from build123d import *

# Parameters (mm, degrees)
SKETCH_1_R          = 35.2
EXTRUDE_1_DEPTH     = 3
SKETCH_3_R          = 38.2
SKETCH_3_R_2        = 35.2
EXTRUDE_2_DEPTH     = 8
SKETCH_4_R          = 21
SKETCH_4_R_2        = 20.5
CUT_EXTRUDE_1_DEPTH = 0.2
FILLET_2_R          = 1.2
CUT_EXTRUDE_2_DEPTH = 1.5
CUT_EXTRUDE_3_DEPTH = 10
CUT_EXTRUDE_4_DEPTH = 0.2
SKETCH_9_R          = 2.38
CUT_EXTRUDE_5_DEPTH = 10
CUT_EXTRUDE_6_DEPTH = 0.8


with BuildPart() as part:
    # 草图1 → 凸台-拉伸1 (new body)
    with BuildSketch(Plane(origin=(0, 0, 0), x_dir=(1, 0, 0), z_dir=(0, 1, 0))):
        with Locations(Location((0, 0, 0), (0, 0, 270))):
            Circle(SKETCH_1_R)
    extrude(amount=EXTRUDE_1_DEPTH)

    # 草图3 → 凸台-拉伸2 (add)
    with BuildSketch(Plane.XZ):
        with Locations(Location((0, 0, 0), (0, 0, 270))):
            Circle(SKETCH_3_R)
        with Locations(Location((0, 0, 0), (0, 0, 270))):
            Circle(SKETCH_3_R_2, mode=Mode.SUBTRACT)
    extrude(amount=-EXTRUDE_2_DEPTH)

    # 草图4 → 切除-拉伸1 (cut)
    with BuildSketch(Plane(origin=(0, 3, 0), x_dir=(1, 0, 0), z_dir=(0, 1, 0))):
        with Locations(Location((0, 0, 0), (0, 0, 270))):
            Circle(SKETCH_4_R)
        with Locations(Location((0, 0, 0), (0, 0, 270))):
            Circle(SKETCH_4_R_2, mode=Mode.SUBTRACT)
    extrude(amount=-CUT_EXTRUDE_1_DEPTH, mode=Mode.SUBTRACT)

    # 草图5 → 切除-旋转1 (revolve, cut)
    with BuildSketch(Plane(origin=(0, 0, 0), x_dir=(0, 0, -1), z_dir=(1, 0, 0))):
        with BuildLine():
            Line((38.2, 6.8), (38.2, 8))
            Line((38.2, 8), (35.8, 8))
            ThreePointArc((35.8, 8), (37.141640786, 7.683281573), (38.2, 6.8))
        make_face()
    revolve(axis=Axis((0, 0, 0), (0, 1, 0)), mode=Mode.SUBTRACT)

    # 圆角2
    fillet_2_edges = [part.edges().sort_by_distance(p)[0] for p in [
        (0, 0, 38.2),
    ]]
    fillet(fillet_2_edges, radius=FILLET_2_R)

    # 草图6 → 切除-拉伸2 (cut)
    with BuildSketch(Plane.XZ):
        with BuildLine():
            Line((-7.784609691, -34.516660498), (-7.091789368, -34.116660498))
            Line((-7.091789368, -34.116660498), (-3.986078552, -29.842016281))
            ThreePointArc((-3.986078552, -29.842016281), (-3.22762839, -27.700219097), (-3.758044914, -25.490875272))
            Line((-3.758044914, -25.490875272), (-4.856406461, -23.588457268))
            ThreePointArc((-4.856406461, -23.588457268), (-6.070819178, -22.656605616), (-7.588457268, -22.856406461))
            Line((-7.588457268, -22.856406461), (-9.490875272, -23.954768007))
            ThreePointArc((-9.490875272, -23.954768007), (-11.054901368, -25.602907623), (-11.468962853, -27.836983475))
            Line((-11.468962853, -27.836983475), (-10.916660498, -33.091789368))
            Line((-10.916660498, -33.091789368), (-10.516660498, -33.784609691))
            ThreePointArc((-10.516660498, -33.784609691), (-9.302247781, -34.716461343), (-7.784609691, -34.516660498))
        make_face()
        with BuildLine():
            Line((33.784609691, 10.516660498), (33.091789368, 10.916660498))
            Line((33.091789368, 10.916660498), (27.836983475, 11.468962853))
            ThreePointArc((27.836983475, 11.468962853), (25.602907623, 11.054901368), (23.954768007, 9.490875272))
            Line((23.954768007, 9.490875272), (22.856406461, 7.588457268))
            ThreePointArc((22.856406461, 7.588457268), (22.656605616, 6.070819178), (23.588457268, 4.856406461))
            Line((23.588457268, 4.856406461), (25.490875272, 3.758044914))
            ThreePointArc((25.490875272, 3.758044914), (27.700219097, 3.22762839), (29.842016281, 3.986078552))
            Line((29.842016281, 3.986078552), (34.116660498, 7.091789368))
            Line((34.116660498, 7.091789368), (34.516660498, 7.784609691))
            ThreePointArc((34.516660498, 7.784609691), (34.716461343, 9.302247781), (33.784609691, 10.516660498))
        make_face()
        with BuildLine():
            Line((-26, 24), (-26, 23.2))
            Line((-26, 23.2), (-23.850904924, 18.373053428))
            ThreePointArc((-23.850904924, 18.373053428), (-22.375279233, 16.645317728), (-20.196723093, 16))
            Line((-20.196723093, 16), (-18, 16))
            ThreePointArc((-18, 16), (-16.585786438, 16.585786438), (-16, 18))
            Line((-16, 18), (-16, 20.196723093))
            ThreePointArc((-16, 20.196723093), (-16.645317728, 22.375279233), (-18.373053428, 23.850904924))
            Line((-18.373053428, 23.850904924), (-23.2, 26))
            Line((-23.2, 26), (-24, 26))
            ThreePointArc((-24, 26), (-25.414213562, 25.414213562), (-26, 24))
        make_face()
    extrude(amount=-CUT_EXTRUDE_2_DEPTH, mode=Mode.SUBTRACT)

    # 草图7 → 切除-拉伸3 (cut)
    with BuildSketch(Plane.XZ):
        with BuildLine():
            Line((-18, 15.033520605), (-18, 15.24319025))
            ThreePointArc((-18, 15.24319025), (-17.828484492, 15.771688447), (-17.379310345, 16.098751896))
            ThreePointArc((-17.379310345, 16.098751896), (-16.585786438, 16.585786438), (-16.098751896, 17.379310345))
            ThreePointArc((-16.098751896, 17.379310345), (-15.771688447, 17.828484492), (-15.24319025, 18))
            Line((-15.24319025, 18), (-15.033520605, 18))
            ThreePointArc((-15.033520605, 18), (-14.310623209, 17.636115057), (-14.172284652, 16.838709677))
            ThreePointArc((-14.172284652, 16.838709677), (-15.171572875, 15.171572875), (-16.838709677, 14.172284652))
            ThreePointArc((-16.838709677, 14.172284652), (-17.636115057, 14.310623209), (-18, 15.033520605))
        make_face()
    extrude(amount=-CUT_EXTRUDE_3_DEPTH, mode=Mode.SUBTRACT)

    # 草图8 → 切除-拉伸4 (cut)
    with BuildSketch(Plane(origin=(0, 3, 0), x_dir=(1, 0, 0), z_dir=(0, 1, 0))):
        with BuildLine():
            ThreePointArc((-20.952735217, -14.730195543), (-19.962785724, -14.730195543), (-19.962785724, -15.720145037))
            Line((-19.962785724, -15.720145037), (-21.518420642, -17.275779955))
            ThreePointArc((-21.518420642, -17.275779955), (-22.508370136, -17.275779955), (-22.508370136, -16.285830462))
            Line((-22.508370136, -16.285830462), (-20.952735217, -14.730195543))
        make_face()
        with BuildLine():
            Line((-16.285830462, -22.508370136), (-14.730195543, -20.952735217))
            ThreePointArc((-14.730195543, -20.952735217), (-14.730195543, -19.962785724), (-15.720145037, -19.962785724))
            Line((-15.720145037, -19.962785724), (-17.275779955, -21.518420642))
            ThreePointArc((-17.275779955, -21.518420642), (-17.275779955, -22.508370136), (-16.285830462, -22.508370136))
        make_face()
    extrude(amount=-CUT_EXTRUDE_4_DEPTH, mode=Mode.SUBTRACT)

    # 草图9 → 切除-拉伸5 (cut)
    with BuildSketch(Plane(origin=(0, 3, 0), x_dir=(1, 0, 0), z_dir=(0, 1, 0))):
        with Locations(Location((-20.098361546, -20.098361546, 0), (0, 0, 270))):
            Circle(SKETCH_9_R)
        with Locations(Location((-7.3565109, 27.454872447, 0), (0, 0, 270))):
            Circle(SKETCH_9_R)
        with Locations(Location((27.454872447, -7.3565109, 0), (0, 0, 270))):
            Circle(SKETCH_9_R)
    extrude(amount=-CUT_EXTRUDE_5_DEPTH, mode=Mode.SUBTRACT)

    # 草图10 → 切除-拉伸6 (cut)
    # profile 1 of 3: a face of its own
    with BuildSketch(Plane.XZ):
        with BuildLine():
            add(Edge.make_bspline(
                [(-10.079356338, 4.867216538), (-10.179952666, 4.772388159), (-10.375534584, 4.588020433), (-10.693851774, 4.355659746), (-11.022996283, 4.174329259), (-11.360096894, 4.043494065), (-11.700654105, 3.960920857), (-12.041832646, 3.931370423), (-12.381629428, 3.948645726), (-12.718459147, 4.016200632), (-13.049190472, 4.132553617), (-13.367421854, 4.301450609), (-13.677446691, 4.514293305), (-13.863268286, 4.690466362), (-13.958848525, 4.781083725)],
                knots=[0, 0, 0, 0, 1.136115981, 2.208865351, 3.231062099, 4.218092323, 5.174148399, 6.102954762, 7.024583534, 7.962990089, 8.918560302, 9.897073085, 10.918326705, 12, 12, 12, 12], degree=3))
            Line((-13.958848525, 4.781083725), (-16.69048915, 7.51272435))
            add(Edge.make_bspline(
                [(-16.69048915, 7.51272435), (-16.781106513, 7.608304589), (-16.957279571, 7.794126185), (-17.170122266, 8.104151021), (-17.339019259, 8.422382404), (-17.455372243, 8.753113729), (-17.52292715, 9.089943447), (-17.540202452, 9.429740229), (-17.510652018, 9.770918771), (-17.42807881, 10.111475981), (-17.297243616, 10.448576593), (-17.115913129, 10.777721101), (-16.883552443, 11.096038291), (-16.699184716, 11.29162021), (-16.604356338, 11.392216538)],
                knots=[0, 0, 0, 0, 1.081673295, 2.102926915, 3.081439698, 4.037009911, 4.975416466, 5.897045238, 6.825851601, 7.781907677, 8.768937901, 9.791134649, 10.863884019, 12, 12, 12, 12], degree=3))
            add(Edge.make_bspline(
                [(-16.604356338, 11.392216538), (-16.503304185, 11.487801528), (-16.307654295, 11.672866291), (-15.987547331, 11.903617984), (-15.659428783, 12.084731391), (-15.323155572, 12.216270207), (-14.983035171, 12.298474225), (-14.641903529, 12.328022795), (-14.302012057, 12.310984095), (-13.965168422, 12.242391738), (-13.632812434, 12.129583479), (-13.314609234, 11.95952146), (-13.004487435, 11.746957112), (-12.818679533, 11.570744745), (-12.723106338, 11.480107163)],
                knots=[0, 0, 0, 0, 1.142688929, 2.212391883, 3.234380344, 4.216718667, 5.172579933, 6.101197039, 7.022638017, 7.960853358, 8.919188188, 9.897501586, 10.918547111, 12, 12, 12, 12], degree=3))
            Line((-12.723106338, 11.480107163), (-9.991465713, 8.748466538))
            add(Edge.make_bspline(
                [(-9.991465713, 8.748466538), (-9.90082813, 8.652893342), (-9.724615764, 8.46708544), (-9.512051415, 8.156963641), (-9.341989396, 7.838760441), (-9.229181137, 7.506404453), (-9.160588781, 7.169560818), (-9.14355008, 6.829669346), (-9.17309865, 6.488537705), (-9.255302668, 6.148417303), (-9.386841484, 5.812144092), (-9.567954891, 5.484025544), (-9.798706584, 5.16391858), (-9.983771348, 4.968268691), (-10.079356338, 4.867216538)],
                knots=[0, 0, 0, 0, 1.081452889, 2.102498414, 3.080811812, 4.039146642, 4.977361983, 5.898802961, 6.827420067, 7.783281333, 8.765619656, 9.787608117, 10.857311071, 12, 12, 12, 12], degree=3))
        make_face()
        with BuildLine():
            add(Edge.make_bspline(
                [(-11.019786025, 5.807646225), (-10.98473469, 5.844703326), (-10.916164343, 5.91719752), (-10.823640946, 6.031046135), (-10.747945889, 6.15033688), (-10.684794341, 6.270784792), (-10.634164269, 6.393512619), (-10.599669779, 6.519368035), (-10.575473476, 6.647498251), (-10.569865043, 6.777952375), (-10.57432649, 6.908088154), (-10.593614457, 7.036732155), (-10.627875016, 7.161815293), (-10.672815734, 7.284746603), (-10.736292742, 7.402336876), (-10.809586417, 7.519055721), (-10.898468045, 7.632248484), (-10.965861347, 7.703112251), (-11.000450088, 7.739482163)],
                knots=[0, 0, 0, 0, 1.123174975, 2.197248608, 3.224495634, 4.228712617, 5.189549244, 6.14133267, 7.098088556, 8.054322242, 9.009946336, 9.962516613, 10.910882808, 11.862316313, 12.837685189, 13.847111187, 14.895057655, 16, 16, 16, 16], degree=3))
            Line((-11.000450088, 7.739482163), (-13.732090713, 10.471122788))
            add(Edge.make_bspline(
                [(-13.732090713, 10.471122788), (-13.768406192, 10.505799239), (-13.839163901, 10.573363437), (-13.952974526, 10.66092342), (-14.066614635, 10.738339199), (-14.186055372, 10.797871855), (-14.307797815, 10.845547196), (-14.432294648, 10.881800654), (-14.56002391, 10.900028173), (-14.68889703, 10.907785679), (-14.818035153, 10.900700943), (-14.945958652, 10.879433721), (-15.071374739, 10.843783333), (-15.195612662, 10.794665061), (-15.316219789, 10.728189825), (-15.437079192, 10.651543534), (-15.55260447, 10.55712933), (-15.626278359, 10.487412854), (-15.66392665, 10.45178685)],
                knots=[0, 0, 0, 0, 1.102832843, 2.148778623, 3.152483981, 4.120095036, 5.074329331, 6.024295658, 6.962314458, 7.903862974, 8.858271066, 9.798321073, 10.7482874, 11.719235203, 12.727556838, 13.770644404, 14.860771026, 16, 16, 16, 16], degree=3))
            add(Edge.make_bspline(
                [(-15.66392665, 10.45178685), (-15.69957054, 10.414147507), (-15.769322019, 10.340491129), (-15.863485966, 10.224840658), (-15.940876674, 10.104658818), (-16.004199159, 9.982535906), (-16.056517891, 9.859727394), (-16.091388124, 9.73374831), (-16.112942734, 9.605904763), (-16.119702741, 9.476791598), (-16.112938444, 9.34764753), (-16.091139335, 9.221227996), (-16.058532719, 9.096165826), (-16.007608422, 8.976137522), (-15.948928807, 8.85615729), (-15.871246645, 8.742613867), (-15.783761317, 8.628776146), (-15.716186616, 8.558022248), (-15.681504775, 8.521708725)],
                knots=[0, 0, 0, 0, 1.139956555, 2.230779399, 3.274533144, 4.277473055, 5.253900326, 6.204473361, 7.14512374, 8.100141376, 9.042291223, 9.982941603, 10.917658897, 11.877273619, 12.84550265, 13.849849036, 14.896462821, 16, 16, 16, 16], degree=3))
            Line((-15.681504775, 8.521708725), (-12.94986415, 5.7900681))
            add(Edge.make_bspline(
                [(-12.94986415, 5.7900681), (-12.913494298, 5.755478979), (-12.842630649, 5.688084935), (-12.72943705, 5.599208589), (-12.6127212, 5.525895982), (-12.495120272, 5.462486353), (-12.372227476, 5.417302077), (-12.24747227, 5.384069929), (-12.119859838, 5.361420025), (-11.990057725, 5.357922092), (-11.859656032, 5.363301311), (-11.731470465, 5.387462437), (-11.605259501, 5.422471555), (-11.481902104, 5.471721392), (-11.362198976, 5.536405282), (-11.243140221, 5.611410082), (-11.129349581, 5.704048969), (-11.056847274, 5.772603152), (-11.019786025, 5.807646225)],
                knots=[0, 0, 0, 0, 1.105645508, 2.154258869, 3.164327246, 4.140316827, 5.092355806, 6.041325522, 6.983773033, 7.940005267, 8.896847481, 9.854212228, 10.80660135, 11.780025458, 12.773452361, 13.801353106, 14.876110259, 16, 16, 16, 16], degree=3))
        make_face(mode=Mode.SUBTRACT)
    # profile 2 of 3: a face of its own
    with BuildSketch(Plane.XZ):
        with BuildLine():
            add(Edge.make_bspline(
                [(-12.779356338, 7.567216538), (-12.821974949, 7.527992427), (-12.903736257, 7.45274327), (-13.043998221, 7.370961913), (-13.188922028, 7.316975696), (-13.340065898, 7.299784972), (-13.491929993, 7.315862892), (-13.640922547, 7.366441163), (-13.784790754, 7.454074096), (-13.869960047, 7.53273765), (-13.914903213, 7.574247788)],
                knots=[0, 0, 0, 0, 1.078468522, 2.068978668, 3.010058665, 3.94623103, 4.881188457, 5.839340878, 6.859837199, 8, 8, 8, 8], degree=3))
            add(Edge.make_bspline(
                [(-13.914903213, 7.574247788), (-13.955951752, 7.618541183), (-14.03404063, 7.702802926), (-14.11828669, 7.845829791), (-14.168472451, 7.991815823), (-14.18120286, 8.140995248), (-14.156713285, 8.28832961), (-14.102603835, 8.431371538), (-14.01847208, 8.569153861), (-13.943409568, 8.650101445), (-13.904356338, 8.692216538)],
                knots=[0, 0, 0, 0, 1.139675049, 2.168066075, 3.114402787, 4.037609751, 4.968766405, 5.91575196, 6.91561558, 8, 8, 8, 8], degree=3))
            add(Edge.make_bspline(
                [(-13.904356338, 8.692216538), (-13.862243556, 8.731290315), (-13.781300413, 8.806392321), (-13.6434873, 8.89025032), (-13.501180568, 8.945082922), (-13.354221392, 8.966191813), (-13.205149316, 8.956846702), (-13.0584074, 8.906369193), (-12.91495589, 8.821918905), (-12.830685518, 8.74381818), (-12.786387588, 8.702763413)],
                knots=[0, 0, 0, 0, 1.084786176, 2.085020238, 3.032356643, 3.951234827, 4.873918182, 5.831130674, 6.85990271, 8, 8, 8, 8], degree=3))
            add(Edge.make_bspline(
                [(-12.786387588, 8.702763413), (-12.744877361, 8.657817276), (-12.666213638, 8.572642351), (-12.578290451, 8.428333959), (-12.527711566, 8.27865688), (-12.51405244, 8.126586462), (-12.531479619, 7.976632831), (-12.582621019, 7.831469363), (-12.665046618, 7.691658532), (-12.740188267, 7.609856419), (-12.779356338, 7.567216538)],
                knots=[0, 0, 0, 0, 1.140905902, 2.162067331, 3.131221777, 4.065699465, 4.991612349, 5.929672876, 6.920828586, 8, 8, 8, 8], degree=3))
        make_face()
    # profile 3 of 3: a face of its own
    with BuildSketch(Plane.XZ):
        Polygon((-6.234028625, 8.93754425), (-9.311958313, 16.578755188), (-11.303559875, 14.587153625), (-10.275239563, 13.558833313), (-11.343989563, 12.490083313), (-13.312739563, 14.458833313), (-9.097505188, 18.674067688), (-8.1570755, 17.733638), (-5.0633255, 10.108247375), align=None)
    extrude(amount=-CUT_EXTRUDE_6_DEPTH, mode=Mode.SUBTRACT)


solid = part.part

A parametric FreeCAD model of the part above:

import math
import FreeCAD as App
import Part
import Sketcher

V = App.Vector
Q = App.Units.Quantity


def edges_at(feature, points):
    """Names of the edges that pass closest to the given points."""
    edges = feature.Shape.Edges
    near = lambda p: min(range(len(edges)), key=lambda i: edges[i].distToShape(Part.Vertex(*p))[0])
    return sorted({f"Edge{near(p) + 1}" for p in points})


def add_polygon(sketch, points):
    """Adds a closed chain of lines whose ends are joined by coincident constraints."""
    first, n = sketch.GeometryCount, len(points)
    for a, b in zip(points, points[1:] + points[:1]):
        sketch.addGeometry(Part.LineSegment(App.Vector(*a, 0), App.Vector(*b, 0)), False)
    for i in range(n):
        sketch.addConstraint(Sketcher.Constraint("Coincident", first + i, 2, first + (i + 1) % n, 1))

doc = App.newDocument("Part")
params = doc.addObject("Spreadsheet::Sheet", "Params")
for row, (alias, value) in enumerate([
    ("sketch1_diameter", "70.4 mm"),
    ("pad1_length", "3 mm"),
    ("sketch2_diameter", "76.4 mm"),
    ("sketch2_diameter2", "70.4 mm"),
    ("pad2_length", "8 mm"),
    ("sketch3_diameter", "42 mm"),
    ("sketch3_diameter2", "41 mm"),
    ("pocket1_length", "0.2 mm"),
    ("sketch4_radius", "3 mm"),
    ("sketch4_width", "1.2 mm"),
    ("groove_angle", "360 deg"),
    ("fillet_radius", "1.2 mm"),
    ("sketch5_radius", "4 mm"),
    ("sketch5_radius2", "2 mm"),
    ("sketch5_width", "0.8 mm"),
    ("sketch5_length", "0.8 mm"),
    ("pocket2_length", "1.5 mm"),
    ("sketch6_radius", "4 mm"),
    ("sketch6_radius2", "2 mm"),
    ("sketch6_radius3", "0.9 mm"),
    ("pocket3_length", "10 mm"),
    ("sketch7_radius", "0.7 mm"),
    ("sketch7_length", "2.2 mm"),
    ("pocket4_length", "0.2 mm"),
    ("sketch8_diameter", "4.76 mm"),
    ("pocket5_length", "10 mm"),
    ("pocket6_length", "0.8 mm"),
], start=1):
    params.set(f"A{row}", alias)
    params.set(f"B{row}", "=" + value)
    params.setAlias(f"B{row}", alias)

body = doc.addObject("PartDesign::Body", "Body")

sketch1 = body.newObject("Sketcher::SketchObject", "Sketch")
sketch1.AttachmentSupport = (doc.getObject("XZ_Plane"), [""])
sketch1.MapMode = "FlatFace"
sketch1.addGeometry(Part.Circle(V(0, 0, 0), V(0, 0, 1), 35.2), False)
sketch1.addConstraint(Sketcher.Constraint("Coincident", 0, 3, -1, 1))
sketch1.addConstraint(Sketcher.Constraint("Diameter", 0, 70.4))
sketch1.setExpression("Constraints[1]", "Params.sketch1_diameter")
pad1 = body.newObject("PartDesign::Pad", "Pad")
pad1.Profile = sketch1
pad1.setExpression("Length", "Params.pad1_length")
pad1.Reversed = True

sketch2 = body.newObject("Sketcher::SketchObject", "Sketch001")
sketch2.AttachmentSupport = (doc.getObject("XZ_Plane"), [""])
sketch2.MapMode = "FlatFace"
sketch2.addGeometry(Part.Circle(V(0, 0, 0), V(0, 0, 1), 38.2), False)
sketch2.addGeometry(Part.Circle(V(0, 0, 0), V(0, 0, 1), 35.2), False)
sketch2.addConstraint(Sketcher.Constraint("Coincident", 0, 3, -1, 1))
sketch2.addConstraint(Sketcher.Constraint("Coincident", 1, 3, -1, 1))
sketch2.addConstraint(Sketcher.Constraint("Diameter", 0, 76.4))
sketch2.addConstraint(Sketcher.Constraint("Diameter", 1, 70.4))
sketch2.setExpression("Constraints[2]", "Params.sketch2_diameter")
sketch2.setExpression("Constraints[3]", "Params.sketch2_diameter2")
pad2 = body.newObject("PartDesign::Pad", "Pad001")
pad2.Profile = sketch2
pad2.setExpression("Length", "Params.pad2_length")
pad2.Reversed = True

sketch3 = body.newObject("Sketcher::SketchObject", "Sketch002")
sketch3.AttachmentSupport = (doc.getObject("XZ_Plane"), [""])
sketch3.MapMode = "FlatFace"
sketch3.AttachmentOffset = App.Placement(V(0, 0, -3), App.Rotation())
sketch3.addGeometry(Part.Circle(V(0, 0, 0), V(0, 0, 1), 21), False)
sketch3.addGeometry(Part.Circle(V(0, 0, 0), V(0, 0, 1), 20.5), False)
sketch3.addConstraint(Sketcher.Constraint("Coincident", 0, 3, -1, 1))
sketch3.addConstraint(Sketcher.Constraint("Coincident", 1, 3, -1, 1))
sketch3.addConstraint(Sketcher.Constraint("Diameter", 0, 42.0))
sketch3.addConstraint(Sketcher.Constraint("Diameter", 1, 41.0))
sketch3.setExpression("Constraints[2]", "Params.sketch3_diameter")
sketch3.setExpression("Constraints[3]", "Params.sketch3_diameter2")
pocket1 = body.newObject("PartDesign::Pocket", "Pocket")
pocket1.Profile = sketch3
pocket1.setExpression("Length", "Params.pocket1_length")
pocket1.Reversed = True

sketch4 = body.newObject("Sketcher::SketchObject", "Sketch003")
sketch4.AttachmentSupport = (doc.getObject("YZ_Plane"), [""])
sketch4.MapMode = "FlatFace"
sketch4.addGeometry(Part.LineSegment(V(6.8, -38.2, 0), V(8, -38.2, 0)), False)
sketch4.addGeometry(Part.LineSegment(V(8, -38.2, 0), V(8, -35.8, 0)), False)
sketch4.addGeometry(Part.ArcOfCircle(Part.Circle(V(5, -35.8, 0), V(0, 0, 1), 3), math.radians(-53.130102), math.radians(0)), False)
sketch4.addConstraint(Sketcher.Constraint("Coincident", 0, 2, 1, 1))
sketch4.addConstraint(Sketcher.Constraint("Tangent", 1, 2, 2, 2))
sketch4.addConstraint(Sketcher.Constraint("Coincident", 2, 1, 0, 1))
sketch4.addConstraint(Sketcher.Constraint("Horizontal", 0))
sketch4.addConstraint(Sketcher.Constraint("Vertical", 1))
sketch4.addConstraint(Sketcher.Constraint("Radius", 2, 3.0))
sketch4.addConstraint(Sketcher.Constraint("DistanceX", 0, 1, 0, 2, 1.2))
sketch4.addConstraint(Sketcher.Constraint("DistanceX", -1, 1, 2, 3, 5.0))
sketch4.addConstraint(Sketcher.Constraint("DistanceY", 2, 3, -1, 1, 35.8))
sketch4.setExpression("Constraints[5]", "Params.sketch4_radius")
sketch4.setExpression("Constraints[6]", "Params.sketch4_width")
groove = body.newObject("PartDesign::Groove", "Groove")
groove.Profile = sketch4
groove.ReferenceAxis = (sketch4, ["H_Axis"])
groove.setExpression("Angle", "Params.groove_angle")
doc.recompute()

fillet = body.newObject("PartDesign::Fillet", "Fillet")
fillet.Base = (groove, edges_at(groove, [(0, 0, 38.2)]))
fillet.setExpression("Radius", "Params.fillet_radius")

sketch5 = body.newObject("Sketcher::SketchObject", "Sketch004")
sketch5.AttachmentSupport = (doc.getObject("XZ_Plane"), [""])
sketch5.MapMode = "FlatFace"
sketch5.addGeometry(Part.LineSegment(V(-7.78461, -34.51666, 0), V(-7.091789, -34.11666, 0)), False)
sketch5.addGeometry(Part.LineSegment(V(-7.091789, -34.11666, 0), V(-3.986079, -29.842016, 0)), False)
sketch5.addGeometry(Part.ArcOfCircle(Part.Circle(V(-7.222147, -27.490875, 0), V(0, 0, 1), 4), math.radians(-36), math.radians(30)), False)
sketch5.addGeometry(Part.LineSegment(V(-3.758045, -25.490875, 0), V(-4.856406, -23.588457, 0)), False)
sketch5.addGeometry(Part.ArcOfCircle(Part.Circle(V(-6.588457, -24.588457, 0), V(0, 0, 1), 2), math.radians(30), math.radians(120)), False)
sketch5.addGeometry(Part.LineSegment(V(-7.588457, -22.856406, 0), V(-9.490875, -23.954768, 0)), False)
sketch5.addGeometry(Part.ArcOfCircle(Part.Circle(V(-7.490875, -27.41887, 0), V(0, 0, 1), 4), math.radians(120), math.radians(186)), False)
sketch5.addGeometry(Part.LineSegment(V(-11.468963, -27.836983, 0), V(-10.91666, -33.091789, 0)), False)
sketch5.addGeometry(Part.LineSegment(V(-10.91666, -33.091789, 0), V(-10.51666, -33.78461, 0)), False)
sketch5.addGeometry(Part.ArcOfCircle(Part.Circle(V(-8.78461, -32.78461, 0), V(0, 0, 1), 2), math.radians(-150), math.radians(-60)), False)
sketch5.addGeometry(Part.LineSegment(V(33.78461, 10.51666, 0), V(33.091789, 10.91666, 0)), False)
sketch5.addGeometry(Part.LineSegment(V(33.091789, 10.91666, 0), V(27.836983, 11.468963, 0)), False)
sketch5.addGeometry(Part.ArcOfCircle(Part.Circle(V(27.41887, 7.490875, 0), V(0, 0, 1), 4), math.radians(84), math.radians(150)), False)
sketch5.addGeometry(Part.LineSegment(V(23.954768, 9.490875, 0), V(22.856406, 7.588457, 0)), False)
sketch5.addGeometry(Part.ArcOfCircle(Part.Circle(V(24.588457, 6.588457, 0), V(0, 0, 1), 2), math.radians(150), math.radians(240)), False)
sketch5.addGeometry(Part.LineSegment(V(23.588457, 4.856406, 0), V(25.490875, 3.758045, 0)), False)
sketch5.addGeometry(Part.ArcOfCircle(Part.Circle(V(27.490875, 7.222147, 0), V(0, 0, 1), 4), math.radians(-120), math.radians(-54)), False)
sketch5.addGeometry(Part.LineSegment(V(29.842016, 3.986079, 0), V(34.11666, 7.091789, 0)), False)
sketch5.addGeometry(Part.LineSegment(V(34.11666, 7.091789, 0), V(34.51666, 7.78461, 0)), False)
sketch5.addGeometry(Part.ArcOfCircle(Part.Circle(V(32.78461, 8.78461, 0), V(0, 0, 1), 2), math.radians(-30), math.radians(60)), False)
sketch5.addGeometry(Part.LineSegment(V(-26, 24, 0), V(-26, 23.2, 0)), False)
sketch5.addGeometry(Part.LineSegment(V(-26, 23.2, 0), V(-23.850905, 18.373053, 0)), False)
sketch5.addGeometry(Part.ArcOfCircle(Part.Circle(V(-20.196723, 20, 0), V(0, 0, 1), 4), math.radians(-156), math.radians(-90)), False)
sketch5.addGeometry(Part.LineSegment(V(-20.196723, 16, 0), V(-18, 16, 0)), False)
sketch5.addGeometry(Part.ArcOfCircle(Part.Circle(V(-18, 18, 0), V(0, 0, 1), 2), math.radians(-90), math.radians(0)), False)
sketch5.addGeometry(Part.LineSegment(V(-16, 18, 0), V(-16, 20.196723, 0)), False)
sketch5.addGeometry(Part.ArcOfCircle(Part.Circle(V(-20, 20.196723, 0), V(0, 0, 1), 4), math.radians(0), math.radians(66)), False)
sketch5.addGeometry(Part.LineSegment(V(-18.373053, 23.850905, 0), V(-23.2, 26, 0)), False)
sketch5.addGeometry(Part.LineSegment(V(-23.2, 26, 0), V(-24, 26, 0)), False)
sketch5.addGeometry(Part.ArcOfCircle(Part.Circle(V(-24, 24, 0), V(0, 0, 1), 2), math.radians(90), math.radians(180)), False)
sketch5.addConstraint(Sketcher.Constraint("Coincident", 0, 2, 1, 1))
sketch5.addConstraint(Sketcher.Constraint("Tangent", 1, 2, 2, 1))
sketch5.addConstraint(Sketcher.Constraint("Tangent", 2, 2, 3, 1))
sketch5.addConstraint(Sketcher.Constraint("Tangent", 3, 2, 4, 1))
sketch5.addConstraint(Sketcher.Constraint("Tangent", 4, 2, 5, 1))
sketch5.addConstraint(Sketcher.Constraint("Tangent", 5, 2, 6, 1))
sketch5.addConstraint(Sketcher.Constraint("Tangent", 6, 2, 7, 1))
sketch5.addConstraint(Sketcher.Constraint("Coincident", 7, 2, 8, 1))
sketch5.addConstraint(Sketcher.Constraint("Tangent", 8, 2, 9, 1))
sketch5.addConstraint(Sketcher.Constraint("Tangent", 9, 2, 0, 1))
sketch5.addConstraint(Sketcher.Constraint("Coincident", 10, 2, 11, 1))
sketch5.addConstraint(Sketcher.Constraint("Tangent", 11, 2, 12, 1))
sketch5.addConstraint(Sketcher.Constraint("Tangent", 12, 2, 13, 1))
sketch5.addConstraint(Sketcher.Constraint("Tangent", 13, 2, 14, 1))
sketch5.addConstraint(Sketcher.Constraint("Tangent", 14, 2, 15, 1))
sketch5.addConstraint(Sketcher.Constraint("Tangent", 15, 2, 16, 1))
sketch5.addConstraint(Sketcher.Constraint("Tangent", 16, 2, 17, 1))
sketch5.addConstraint(Sketcher.Constraint("Coincident", 17, 2, 18, 1))
sketch5.addConstraint(Sketcher.Constraint("Tangent", 18, 2, 19, 1))
sketch5.addConstraint(Sketcher.Constraint("Tangent", 19, 2, 10, 1))
sketch5.addConstraint(Sketcher.Constraint("Coincident", 20, 2, 21, 1))
sketch5.addConstraint(Sketcher.Constraint("Tangent", 21, 2, 22, 1))
sketch5.addConstraint(Sketcher.Constraint("Tangent", 22, 2, 23, 1))
sketch5.addConstraint(Sketcher.Constraint("Tangent", 23, 2, 24, 1))
sketch5.addConstraint(Sketcher.Constraint("Tangent", 24, 2, 25, 1))
sketch5.addConstraint(Sketcher.Constraint("Tangent", 25, 2, 26, 1))
sketch5.addConstraint(Sketcher.Constraint("Tangent", 26, 2, 27, 1))
sketch5.addConstraint(Sketcher.Constraint("Coincident", 27, 2, 28, 1))
sketch5.addConstraint(Sketcher.Constraint("Tangent", 28, 2, 29, 1))
sketch5.addConstraint(Sketcher.Constraint("Tangent", 29, 2, 20, 1))
sketch5.addConstraint(Sketcher.Constraint("Vertical", 20))
sketch5.addConstraint(Sketcher.Constraint("Horizontal", 23))
sketch5.addConstraint(Sketcher.Constraint("Vertical", 25))
sketch5.addConstraint(Sketcher.Constraint("Horizontal", 28))
sketch5.addConstraint(Sketcher.Constraint("Equal", 2, 6))
sketch5.addConstraint(Sketcher.Constraint("Equal", 4, 9))
sketch5.addConstraint(Sketcher.Constraint("Equal", 6, 12))
sketch5.addConstraint(Sketcher.Constraint("Equal", 9, 14))
sketch5.addConstraint(Sketcher.Constraint("Equal", 12, 16))
sketch5.addConstraint(Sketcher.Constraint("Equal", 14, 19))
sketch5.addConstraint(Sketcher.Constraint("Equal", 16, 22))
sketch5.addConstraint(Sketcher.Constraint("Equal", 19, 24))
sketch5.addConstraint(Sketcher.Constraint("Equal", 22, 26))
sketch5.addConstraint(Sketcher.Constraint("Equal", 24, 29))
sketch5.addConstraint(Sketcher.Constraint("Perpendicular", 0, 3))
sketch5.addConstraint(Sketcher.Constraint("Perpendicular", 3, 5))
sketch5.addConstraint(Sketcher.Constraint("Perpendicular", 5, 8))
sketch5.addConstraint(Sketcher.Constraint("Perpendicular", 10, 13))
sketch5.addConstraint(Sketcher.Constraint("Perpendicular", 13, 15))
sketch5.addConstraint(Sketcher.Constraint("Perpendicular", 15, 18))
sketch5.addConstraint(Sketcher.Constraint("Equal", 28, 20))
sketch5.addConstraint(Sketcher.Constraint("Equal", 23, 25))
sketch5.addConstraint(Sketcher.Constraint("Equal", 3, 5))
sketch5.addConstraint(Sketcher.Constraint("Equal", 1, 7))
sketch5.addConstraint(Sketcher.Constraint("Equal", 0, 8))
sketch5.addConstraint(Sketcher.Constraint("Equal", 8, 10))
sketch5.addConstraint(Sketcher.Constraint("Equal", 7, 11))
sketch5.addConstraint(Sketcher.Constraint("Equal", 5, 13))
sketch5.addConstraint(Sketcher.Constraint("Equal", 13, 15))
sketch5.addConstraint(Sketcher.Constraint("Equal", 11, 17))
sketch5.addConstraint(Sketcher.Constraint("Equal", 10, 18))
sketch5.addConstraint(Sketcher.Constraint("Equal", 17, 21))
sketch5.addConstraint(Sketcher.Constraint("Equal", 21, 27))
sketch5.addConstraint(Sketcher.Constraint("Radius", 2, 4.0))
sketch5.addConstraint(Sketcher.Constraint("Radius", 4, 2.0))
sketch5.addConstraint(Sketcher.Constraint("Angle", 0, Q("30 deg")))
sketch5.addConstraint(Sketcher.Constraint("Angle", 1, Q("54 deg")))
sketch5.addConstraint(Sketcher.Constraint("Angle", 10, Q("150 deg")))
sketch5.addConstraint(Sketcher.Constraint("Angle", 21, Q("-66 deg")))
sketch5.addConstraint(Sketcher.Constraint("DistanceX", 28, 2, 28, 1, 0.8))
sketch5.addConstraint(Sketcher.Constraint("DistanceY", -1, 1, 22, 3, 20.0))
sketch5.addConstraint(Sketcher.Constraint("DistanceX", 24, 3, -1, 1, 18.0))
sketch5.addConstraint(Sketcher.Constraint("DistanceX", 29, 3, -1, 1, 24.0))
sketch5.addConstraint(Sketcher.Constraint("Distance", 0, 0.8))
sketch5.addConstraint(Sketcher.Constraint("DistanceY", 6, 3, -1, 1, 27.41887))
sketch5.addConstraint(Sketcher.Constraint("DistanceX", 9, 3, -1, 1, 8.78461))
sketch5.addConstraint(Sketcher.Constraint("DistanceX", -1, 1, 12, 3, 27.41887))
sketch5.addConstraint(Sketcher.Constraint("DistanceY", -1, 1, 19, 3, 8.78461))
sketch5.setExpression("Constraints[63]", "Params.sketch5_radius")
sketch5.setExpression("Constraints[64]", "Params.sketch5_radius2")
sketch5.setExpression("Constraints[69]", "Params.sketch5_width")
sketch5.setExpression("Constraints[73]", "Params.sketch5_length")
pocket2 = body.newObject("PartDesign::Pocket", "Pocket001")
pocket2.Profile = sketch5
pocket2.setExpression("Length", "Params.pocket2_length")

sketch6 = body.newObject("Sketcher::SketchObject", "Sketch005")
sketch6.AttachmentSupport = (doc.getObject("XZ_Plane"), [""])
sketch6.MapMode = "FlatFace"
sketch6.addGeometry(Part.LineSegment(V(-18, 15.24319, 0), V(-18, 15.033521, 0)), False)
sketch6.addGeometry(Part.ArcOfCircle(Part.Circle(V(-17.1, 15.033521, 0), V(0, 0, 1), 0.9), math.radians(180), math.radians(286.877269)), False)
sketch6.addGeometry(Part.ArcOfCircle(Part.Circle(V(-18, 18, 0), V(0, 0, 1), 4), math.radians(-73.122731), math.radians(-16.877269)), False)
sketch6.addGeometry(Part.ArcOfCircle(Part.Circle(V(-15.033521, 17.1, 0), V(0, 0, 1), 0.9), math.radians(-16.877269), math.radians(90)), False)
sketch6.addGeometry(Part.LineSegment(V(-15.033521, 18, 0), V(-15.24319, 18, 0)), False)
sketch6.addGeometry(Part.ArcOfCircle(Part.Circle(V(-15.24319, 17.1, 0), V(0, 0, 1), 0.9), math.radians(90), math.radians(161.919987)), False)
sketch6.addGeometry(Part.ArcOfCircle(Part.Circle(V(-18, 18, 0), V(0, 0, 1), 2), math.radians(-71.919987), math.radians(-18.080013)), False)
sketch6.addGeometry(Part.ArcOfCircle(Part.Circle(V(-17.1, 15.24319, 0), V(0, 0, 1), 0.9), math.radians(108.080013), math.radians(180)), False)
sketch6.addConstraint(Sketcher.Constraint("Tangent", 0, 2, 1, 1))
sketch6.addConstraint(Sketcher.Constraint("Tangent", 1, 2, 2, 1))
sketch6.addConstraint(Sketcher.Constraint("Tangent", 2, 2, 3, 1))
sketch6.addConstraint(Sketcher.Constraint("Tangent", 3, 2, 4, 1))
sketch6.addConstraint(Sketcher.Constraint("Tangent", 4, 2, 5, 1))
sketch6.addConstraint(Sketcher.Constraint("Tangent", 5, 2, 6, 2))
sketch6.addConstraint(Sketcher.Constraint("Tangent", 6, 1, 7, 1))
sketch6.addConstraint(Sketcher.Constraint("Tangent", 7, 2, 0, 1))
sketch6.addConstraint(Sketcher.Constraint("Vertical", 0))
sketch6.addConstraint(Sketcher.Constraint("Horizontal", 4))
sketch6.addConstraint(Sketcher.Constraint("Coincident", 6, 3, 2, 3))
sketch6.addConstraint(Sketcher.Constraint("Equal", 1, 3))
sketch6.addConstraint(Sketcher.Constraint("Equal", 3, 5))
sketch6.addConstraint(Sketcher.Constraint("Equal", 5, 7))
sketch6.addConstraint(Sketcher.Constraint("Horizontal", 6, 3, 3, 2))
sketch6.addConstraint(Sketcher.Constraint("Vertical", 6, 3, 0, 2))
sketch6.addConstraint(Sketcher.Constraint("Radius", 2, 4.0))
sketch6.addConstraint(Sketcher.Constraint("Radius", 6, 2.0))
sketch6.addConstraint(Sketcher.Constraint("Radius", 1, 0.9))
sketch6.addConstraint(Sketcher.Constraint("DistanceX", 2, 3, -1, 1, 18.0))
sketch6.addConstraint(Sketcher.Constraint("DistanceY", -1, 1, 2, 3, 18.0))
sketch6.setExpression("Constraints[16]", "Params.sketch6_radius")
sketch6.setExpression("Constraints[17]", "Params.sketch6_radius2")
sketch6.setExpression("Constraints[18]", "Params.sketch6_radius3")
pocket3 = body.newObject("PartDesign::Pocket", "Pocket002")
pocket3.Profile = sketch6
pocket3.setExpression("Length", "Params.pocket3_length")

sketch7 = body.newObject("Sketcher::SketchObject", "Sketch006")
sketch7.AttachmentSupport = (doc.getObject("XZ_Plane"), [""])
sketch7.MapMode = "FlatFace"
sketch7.AttachmentOffset = App.Placement(V(0, 0, -3), App.Rotation())
sketch7.addGeometry(Part.ArcOfCircle(Part.Circle(V(-20.45776, 15.22517, 0), V(0, 0, 1), 0.7), math.radians(-135), math.radians(45)), False)
sketch7.addGeometry(Part.LineSegment(V(-20.952735, 14.730196, 0), V(-22.50837, 16.28583, 0)), False)
sketch7.addGeometry(Part.ArcOfCircle(Part.Circle(V(-22.013395, 16.780805, 0), V(0, 0, 1), 0.7), math.radians(45), math.radians(225)), False)
sketch7.addGeometry(Part.LineSegment(V(-21.518421, 17.27578, 0), V(-19.962786, 15.720145, 0)), False)
sketch7.addGeometry(Part.LineSegment(V(-16.28583, 22.50837, 0), V(-14.730196, 20.952735, 0)), False)
sketch7.addGeometry(Part.ArcOfCircle(Part.Circle(V(-15.22517, 20.45776, 0), V(0, 0, 1), 0.7), math.radians(-135), math.radians(45)), False)
sketch7.addGeometry(Part.LineSegment(V(-15.720145, 19.962786, 0), V(-17.27578, 21.518421, 0)), False)
sketch7.addGeometry(Part.ArcOfCircle(Part.Circle(V(-16.780805, 22.013395, 0), V(0, 0, 1), 0.7), math.radians(45), math.radians(225)), False)
sketch7.addConstraint(Sketcher.Constraint("Tangent", 0, 1, 1, 1))
sketch7.addConstraint(Sketcher.Constraint("Tangent", 1, 2, 2, 2))
sketch7.addConstraint(Sketcher.Constraint("Tangent", 2, 1, 3, 1))
sketch7.addConstraint(Sketcher.Constraint("Tangent", 3, 2, 0, 2))
sketch7.addConstraint(Sketcher.Constraint("Tangent", 4, 2, 5, 2))
sketch7.addConstraint(Sketcher.Constraint("Tangent", 5, 1, 6, 1))
sketch7.addConstraint(Sketcher.Constraint("Tangent", 6, 2, 7, 2))
sketch7.addConstraint(Sketcher.Constraint("Tangent", 7, 1, 4, 1))
sketch7.addConstraint(Sketcher.Constraint("Equal", 0, 2))
sketch7.addConstraint(Sketcher.Constraint("Equal", 2, 5))
sketch7.addConstraint(Sketcher.Constraint("Equal", 5, 7))
sketch7.addConstraint(Sketcher.Constraint("Parallel", 3, 4))
sketch7.addConstraint(Sketcher.Constraint("Equal", 3, 4))
sketch7.addConstraint(Sketcher.Constraint("Radius", 0, 0.7))
sketch7.addConstraint(Sketcher.Constraint("Angle", 1, Q("135 deg")))
sketch7.addConstraint(Sketcher.Constraint("Distance", 1, 2.2))
sketch7.addConstraint(Sketcher.Constraint("DistanceY", 0, 1, 7, 3, 7.2832))
sketch7.addConstraint(Sketcher.Constraint("DistanceX", 1, 2, 5, 3, 7.2832))
sketch7.addConstraint(Sketcher.Constraint("DistanceX", 0, 3, -1, 1, 20.45776))
sketch7.addConstraint(Sketcher.Constraint("DistanceY", -1, 1, 0, 3, 15.22517))
sketch7.setExpression("Constraints[13]", "Params.sketch7_radius")
sketch7.setExpression("Constraints[15]", "Params.sketch7_length")
pocket4 = body.newObject("PartDesign::Pocket", "Pocket003")
pocket4.Profile = sketch7
pocket4.setExpression("Length", "Params.pocket4_length")
pocket4.Reversed = True

sketch8 = body.newObject("Sketcher::SketchObject", "Sketch007")
sketch8.AttachmentSupport = (doc.getObject("XZ_Plane"), [""])
sketch8.MapMode = "FlatFace"
sketch8.AttachmentOffset = App.Placement(V(0, 0, -3), App.Rotation())
sketch8.addGeometry(Part.Circle(V(-20.098362, 20.098362, 0), V(0, 0, 1), 2.38), False)
sketch8.addGeometry(Part.Circle(V(-7.356511, -27.454872, 0), V(0, 0, 1), 2.38), False)
sketch8.addGeometry(Part.Circle(V(27.454872, 7.356511, 0), V(0, 0, 1), 2.38), False)
sketch8.addConstraint(Sketcher.Constraint("Equal", 0, 1))
sketch8.addConstraint(Sketcher.Constraint("Equal", 1, 2))
sketch8.addConstraint(Sketcher.Constraint("Diameter", 0, 4.76))
sketch8.addConstraint(Sketcher.Constraint("DistanceX", 0, 3, -1, 1, 20.098362))
sketch8.addConstraint(Sketcher.Constraint("DistanceY", -1, 1, 0, 3, 20.098362))
sketch8.addConstraint(Sketcher.Constraint("DistanceX", 1, 3, -1, 1, 7.356511))
sketch8.addConstraint(Sketcher.Constraint("DistanceY", -1, 1, 2, 3, 7.356511))
sketch8.addConstraint(Sketcher.Constraint("DistanceY", 1, 3, -1, 1, 27.454872))
sketch8.addConstraint(Sketcher.Constraint("DistanceX", -1, 1, 2, 3, 27.454872))
sketch8.setExpression("Constraints[2]", "Params.sketch8_diameter")
pocket5 = body.newObject("PartDesign::Pocket", "Pocket004")
pocket5.Profile = sketch8
pocket5.setExpression("Length", "Params.pocket5_length")
pocket5.Reversed = True

sketch9 = body.newObject("Sketcher::SketchObject", "Sketch008")
sketch9.AttachmentSupport = (doc.getObject("XZ_Plane"), [""])
sketch9.MapMode = "FlatFace"
sketch9.addGeometry(Part.BSplineCurve([V(-10.079356, 4.867217, 0), V(-10.179953, 4.772388, 0), V(-10.375535, 4.58802, 0), V(-10.693852, 4.35566, 0), V(-11.022996, 4.174329, 0), V(-11.360097, 4.043494, 0), V(-11.700654, 3.960921, 0), V(-12.041833, 3.93137, 0), V(-12.381629, 3.948646, 0), V(-12.718459, 4.016201, 0), V(-13.04919, 4.132554, 0), V(-13.367422, 4.301451, 0), V(-13.677447, 4.514293, 0), V(-13.863268, 4.690466, 0), V(-13.958849, 4.781084, 0)], [4, 1, 1, 1, 1, 1, 1, 1, 1, 1, 1, 1, 4], [0, 1.136115981, 2.208865351, 3.231062099, 4.218092323, 5.174148399, 6.102954762, 7.024583534, 7.962990089, 8.918560302, 9.897073085, 10.918326705, 12], False, 3, [1, 1, 1, 1, 1, 1, 1, 1, 1, 1, 1, 1, 1, 1, 1], False), False)
sketch9.addGeometry(Part.BSplineCurve([V(-9.991466, 8.748467, 0), V(-9.900828, 8.652893, 0), V(-9.724616, 8.467085, 0), V(-9.512051, 8.156964, 0), V(-9.341989, 7.83876, 0), V(-9.229181, 7.506404, 0), V(-9.160589, 7.169561, 0), V(-9.14355, 6.829669, 0), V(-9.173099, 6.488538, 0), V(-9.255303, 6.148417, 0), V(-9.386841, 5.812144, 0), V(-9.567955, 5.484026, 0), V(-9.798707, 5.163919, 0), V(-9.983771, 4.968269, 0), V(-10.079356, 4.867217, 0)], [4, 1, 1, 1, 1, 1, 1, 1, 1, 1, 1, 1, 4], [0, 1.081452889, 2.102498414, 3.080811812, 4.039146642, 4.977361983, 5.898802961, 6.827420067, 7.783281333, 8.765619656, 9.787608117, 10.857311071, 12], False, 3, [1, 1, 1, 1, 1, 1, 1, 1, 1, 1, 1, 1, 1, 1, 1], False), False)
sketch9.addGeometry(Part.LineSegment(V(-9.991466, 8.748467, 0), V(-12.723106, 11.480107, 0)), False)
sketch9.addGeometry(Part.BSplineCurve([V(-16.604356, 11.392217, 0), V(-16.503304, 11.487802, 0), V(-16.307654, 11.672866, 0), V(-15.987547, 11.903618, 0), V(-15.659429, 12.084731, 0), V(-15.323156, 12.21627, 0), V(-14.983035, 12.298474, 0), V(-14.641904, 12.328023, 0), V(-14.302012, 12.310984, 0), V(-13.965168, 12.242392, 0), V(-13.632812, 12.129583, 0), V(-13.314609, 11.959521, 0), V(-13.004487, 11.746957, 0), V(-12.81868, 11.570745, 0), V(-12.723106, 11.480107, 0)], [4, 1, 1, 1, 1, 1, 1, 1, 1, 1, 1, 1, 4], [0, 1.142688929, 2.212391883, 3.234380344, 4.216718667, 5.172579933, 6.101197039, 7.022638017, 7.960853358, 8.919188188, 9.897501586, 10.918547111, 12], False, 3, [1, 1, 1, 1, 1, 1, 1, 1, 1, 1, 1, 1, 1, 1, 1], False), False)
sketch9.addGeometry(Part.BSplineCurve([V(-16.690489, 7.512724, 0), V(-16.781107, 7.608305, 0), V(-16.95728, 7.794126, 0), V(-17.170122, 8.104151, 0), V(-17.339019, 8.422382, 0), V(-17.455372, 8.753114, 0), V(-17.522927, 9.089943, 0), V(-17.540202, 9.42974, 0), V(-17.510652, 9.770919, 0), V(-17.428079, 10.111476, 0), V(-17.297244, 10.448577, 0), V(-17.115913, 10.777721, 0), V(-16.883552, 11.096038, 0), V(-16.699185, 11.29162, 0), V(-16.604356, 11.392217, 0)], [4, 1, 1, 1, 1, 1, 1, 1, 1, 1, 1, 1, 4], [0, 1.081673295, 2.102926915, 3.081439698, 4.037009911, 4.975416466, 5.897045238, 6.825851601, 7.781907677, 8.768937901, 9.791134649, 10.863884019, 12], False, 3, [1, 1, 1, 1, 1, 1, 1, 1, 1, 1, 1, 1, 1, 1, 1], False), False)
sketch9.addGeometry(Part.LineSegment(V(-16.690489, 7.512724, 0), V(-13.958849, 4.781084, 0)), False)
sketch9.addGeometry(Part.BSplineCurve([V(-12.949864, 5.790068, 0), V(-12.913494, 5.755479, 0), V(-12.842631, 5.688085, 0), V(-12.729437, 5.599209, 0), V(-12.612721, 5.525896, 0), V(-12.49512, 5.462486, 0), V(-12.372227, 5.417302, 0), V(-12.247472, 5.38407, 0), V(-12.11986, 5.36142, 0), V(-11.990058, 5.357922, 0), V(-11.859656, 5.363301, 0), V(-11.73147, 5.387462, 0), V(-11.60526, 5.422472, 0), V(-11.481902, 5.471721, 0), V(-11.362199, 5.536405, 0), V(-11.24314, 5.61141, 0), V(-11.12935, 5.704049, 0), V(-11.056847, 5.772603, 0), V(-11.019786, 5.807646, 0)], [4, 1, 1, 1, 1, 1, 1, 1, 1, 1, 1, 1, 1, 1, 1, 1, 4], [0, 1.105645508, 2.154258869, 3.164327246, 4.140316827, 5.092355806, 6.041325522, 6.983773033, 7.940005267, 8.896847481, 9.854212228, 10.80660135, 11.780025458, 12.773452361, 13.801353106, 14.876110259, 16], False, 3, [1, 1, 1, 1, 1, 1, 1, 1, 1, 1, 1, 1, 1, 1, 1, 1, 1, 1, 1], False), False)
sketch9.addGeometry(Part.LineSegment(V(-12.949864, 5.790068, 0), V(-15.681505, 8.521709, 0)), False)
sketch9.addGeometry(Part.BSplineCurve([V(-15.663927, 10.451787, 0), V(-15.699571, 10.414148, 0), V(-15.769322, 10.340491, 0), V(-15.863486, 10.224841, 0), V(-15.940877, 10.104659, 0), V(-16.004199, 9.982536, 0), V(-16.056518, 9.859727, 0), V(-16.091388, 9.733748, 0), V(-16.112943, 9.605905, 0), V(-16.119703, 9.476792, 0), V(-16.112938, 9.347648, 0), V(-16.091139, 9.221228, 0), V(-16.058533, 9.096166, 0), V(-16.007608, 8.976138, 0), V(-15.948929, 8.856157, 0), V(-15.871247, 8.742614, 0), V(-15.783761, 8.628776, 0), V(-15.716187, 8.558022, 0), V(-15.681505, 8.521709, 0)], [4, 1, 1, 1, 1, 1, 1, 1, 1, 1, 1, 1, 1, 1, 1, 1, 4], [0, 1.139956555, 2.230779399, 3.274533144, 4.277473055, 5.253900326, 6.204473361, 7.14512374, 8.100141376, 9.042291223, 9.982941603, 10.917658897, 11.877273619, 12.84550265, 13.849849036, 14.896462821, 16], False, 3, [1, 1, 1, 1, 1, 1, 1, 1, 1, 1, 1, 1, 1, 1, 1, 1, 1, 1, 1], False), False)
sketch9.addGeometry(Part.BSplineCurve([V(-13.732091, 10.471123, 0), V(-13.768406, 10.505799, 0), V(-13.839164, 10.573363, 0), V(-13.952975, 10.660923, 0), V(-14.066615, 10.738339, 0), V(-14.186055, 10.797872, 0), V(-14.307798, 10.845547, 0), V(-14.432295, 10.881801, 0), V(-14.560024, 10.900028, 0), V(-14.688897, 10.907786, 0), V(-14.818035, 10.900701, 0), V(-14.945959, 10.879434, 0), V(-15.071375, 10.843783, 0), V(-15.195613, 10.794665, 0), V(-15.31622, 10.72819, 0), V(-15.437079, 10.651544, 0), V(-15.552604, 10.557129, 0), V(-15.626278, 10.487413, 0), V(-15.663927, 10.451787, 0)], [4, 1, 1, 1, 1, 1, 1, 1, 1, 1, 1, 1, 1, 1, 1, 1, 4], [0, 1.102832843, 2.148778623, 3.152483981, 4.120095036, 5.074329331, 6.024295658, 6.962314458, 7.903862974, 8.858271066, 9.798321073, 10.7482874, 11.719235203, 12.727556838, 13.770644404, 14.860771026, 16], False, 3, [1, 1, 1, 1, 1, 1, 1, 1, 1, 1, 1, 1, 1, 1, 1, 1, 1, 1, 1], False), False)
sketch9.addGeometry(Part.LineSegment(V(-13.732091, 10.471123, 0), V(-11.00045, 7.739482, 0)), False)
sketch9.addGeometry(Part.BSplineCurve([V(-11.019786, 5.807646, 0), V(-10.984735, 5.844703, 0), V(-10.916164, 5.917198, 0), V(-10.823641, 6.031046, 0), V(-10.747946, 6.150337, 0), V(-10.684794, 6.270785, 0), V(-10.634164, 6.393513, 0), V(-10.59967, 6.519368, 0), V(-10.575473, 6.647498, 0), V(-10.569865, 6.777952, 0), V(-10.574326, 6.908088, 0), V(-10.593614, 7.036732, 0), V(-10.627875, 7.161815, 0), V(-10.672816, 7.284747, 0), V(-10.736293, 7.402337, 0), V(-10.809586, 7.519056, 0), V(-10.898468, 7.632248, 0), V(-10.965861, 7.703112, 0), V(-11.00045, 7.739482, 0)], [4, 1, 1, 1, 1, 1, 1, 1, 1, 1, 1, 1, 1, 1, 1, 1, 4], [0, 1.123174975, 2.197248608, 3.224495634, 4.228712617, 5.189549244, 6.14133267, 7.098088556, 8.054322242, 9.009946336, 9.962516613, 10.910882808, 11.862316313, 12.837685189, 13.847111187, 14.895057655, 16], False, 3, [1, 1, 1, 1, 1, 1, 1, 1, 1, 1, 1, 1, 1, 1, 1, 1, 1, 1, 1], False), False)
sketch9.addGeometry(Part.BSplineCurve([V(-12.779356, 7.567217, 0), V(-12.821975, 7.527992, 0), V(-12.903736, 7.452743, 0), V(-13.043998, 7.370962, 0), V(-13.188922, 7.316976, 0), V(-13.340066, 7.299785, 0), V(-13.49193, 7.315863, 0), V(-13.640923, 7.366441, 0), V(-13.784791, 7.454074, 0), V(-13.86996, 7.532738, 0), V(-13.914903, 7.574248, 0)], [4, 1, 1, 1, 1, 1, 1, 1, 4], [0, 1.078468522, 2.068978668, 3.010058665, 3.94623103, 4.881188457, 5.839340878, 6.859837199, 8], False, 3, [1, 1, 1, 1, 1, 1, 1, 1, 1, 1, 1], False), False)
sketch9.addGeometry(Part.BSplineCurve([V(-12.786388, 8.702763, 0), V(-12.744877, 8.657817, 0), V(-12.666214, 8.572642, 0), V(-12.57829, 8.428334, 0), V(-12.527712, 8.278657, 0), V(-12.514052, 8.126586, 0), V(-12.53148, 7.976633, 0), V(-12.582621, 7.831469, 0), V(-12.665047, 7.691659, 0), V(-12.740188, 7.609856, 0), V(-12.779356, 7.567217, 0)], [4, 1, 1, 1, 1, 1, 1, 1, 4], [0, 1.140905902, 2.162067331, 3.131221777, 4.065699465, 4.991612349, 5.929672876, 6.920828586, 8], False, 3, [1, 1, 1, 1, 1, 1, 1, 1, 1, 1, 1], False), False)
sketch9.addGeometry(Part.BSplineCurve([V(-13.904356, 8.692217, 0), V(-13.862244, 8.73129, 0), V(-13.7813, 8.806392, 0), V(-13.643487, 8.89025, 0), V(-13.501181, 8.945083, 0), V(-13.354221, 8.966192, 0), V(-13.205149, 8.956847, 0), V(-13.058407, 8.906369, 0), V(-12.914956, 8.821919, 0), V(-12.830686, 8.743818, 0), V(-12.786388, 8.702763, 0)], [4, 1, 1, 1, 1, 1, 1, 1, 4], [0, 1.084786176, 2.085020238, 3.032356643, 3.951234827, 4.873918182, 5.831130674, 6.85990271, 8], False, 3, [1, 1, 1, 1, 1, 1, 1, 1, 1, 1, 1], False), False)
sketch9.addGeometry(Part.BSplineCurve([V(-13.914903, 7.574248, 0), V(-13.955952, 7.618541, 0), V(-14.034041, 7.702803, 0), V(-14.118287, 7.84583, 0), V(-14.168472, 7.991816, 0), V(-14.181203, 8.140995, 0), V(-14.156713, 8.28833, 0), V(-14.102604, 8.431372, 0), V(-14.018472, 8.569154, 0), V(-13.94341, 8.650101, 0), V(-13.904356, 8.692217, 0)], [4, 1, 1, 1, 1, 1, 1, 1, 4], [0, 1.139675049, 2.168066075, 3.114402787, 4.037609751, 4.968766405, 5.91575196, 6.91561558, 8], False, 3, [1, 1, 1, 1, 1, 1, 1, 1, 1, 1, 1], False), False)
add_polygon(sketch9, [(-9.311958, 16.578755), (-6.234029, 8.937544), (-5.063326, 10.108247), (-8.157075, 17.733638), (-9.097505, 18.674068), (-13.31274, 14.458833), (-11.34399, 12.490083), (-10.27524, 13.558833), (-11.30356, 14.587154)])
sketch9.addConstraint(Sketcher.Constraint("Block", 0))
sketch9.addConstraint(Sketcher.Constraint("Block", 1))
sketch9.addConstraint(Sketcher.Constraint("Block", 3))
sketch9.addConstraint(Sketcher.Constraint("Block", 4))
sketch9.addConstraint(Sketcher.Constraint("Block", 6))
sketch9.addConstraint(Sketcher.Constraint("Block", 8))
sketch9.addConstraint(Sketcher.Constraint("Block", 9))
sketch9.addConstraint(Sketcher.Constraint("Block", 11))
sketch9.addConstraint(Sketcher.Constraint("Block", 12))
sketch9.addConstraint(Sketcher.Constraint("Block", 13))
sketch9.addConstraint(Sketcher.Constraint("Block", 14))
sketch9.addConstraint(Sketcher.Constraint("Block", 15))
sketch9.addConstraint(Sketcher.Constraint("Coincident", 1, 1, 2, 1))
sketch9.addConstraint(Sketcher.Constraint("Coincident", 2, 2, 3, 2))
sketch9.addConstraint(Sketcher.Constraint("Coincident", 4, 1, 5, 1))
sketch9.addConstraint(Sketcher.Constraint("Coincident", 5, 2, 0, 2))
sketch9.addConstraint(Sketcher.Constraint("Coincident", 6, 1, 7, 1))
sketch9.addConstraint(Sketcher.Constraint("Coincident", 7, 2, 8, 2))
sketch9.addConstraint(Sketcher.Constraint("Coincident", 9, 1, 10, 1))
sketch9.addConstraint(Sketcher.Constraint("Coincident", 10, 2, 11, 2))
sketch9.addConstraint(Sketcher.Constraint("DistanceY", 22, 2, 20, 2, 0.9))
sketch9.addConstraint(Sketcher.Constraint("DistanceX", 2, 2, 19, 2, 3.625601))
sketch9.addConstraint(Sketcher.Constraint("DistanceY", 10, 2, 21, 2, 4.750601))
sketch9.addConstraint(Sketcher.Constraint("DistanceX", 20, 2, 22, 2, 3.0375))
sketch9.addConstraint(Sketcher.Constraint("DistanceX", 23, 2, 24, 2, 1.991602))
sketch9.addConstraint(Sketcher.Constraint("DistanceY", 23, 2, 24, 2, 1.991602))
sketch9.addConstraint(Sketcher.Constraint("Distance", 19, 1.329968))
sketch9.addConstraint(Sketcher.Constraint("Distance", 20, 5.961242))
sketch9.addConstraint(Sketcher.Constraint("Distance", 22, 1.511441))
sketch9.addConstraint(Sketcher.Constraint("DistanceX", 16, 2, -1, 1, 6.234029))
sketch9.addConstraint(Sketcher.Constraint("DistanceX", 20, 2, -1, 1, 13.31274))
sketch9.addConstraint(Sketcher.Constraint("DistanceX", 21, 2, -1, 1, 11.34399))
sketch9.addConstraint(Sketcher.Constraint("DistanceX", 23, 2, -1, 1, 11.30356))
sketch9.addConstraint(Sketcher.Constraint("DistanceY", 5, 2, 16, 2, 4.156461))
sketch9.addConstraint(Sketcher.Constraint("DistanceX", 2, 2, 17, 2, 7.659781))
sketch9.addConstraint(Sketcher.Constraint("DistanceY", 17, 2, 2, 2, 1.37186))
sketch9.addConstraint(Sketcher.Constraint("DistanceX", 2, 2, 18, 2, 4.566031))
sketch9.addConstraint(Sketcher.Constraint("DistanceY", 22, 2, 23, 2, 1.02832))
pocket6 = body.newObject("PartDesign::Pocket", "Pocket005")
pocket6.Profile = sketch9
pocket6.setExpression("Length", "Params.pocket6_length")

doc.recompute()
